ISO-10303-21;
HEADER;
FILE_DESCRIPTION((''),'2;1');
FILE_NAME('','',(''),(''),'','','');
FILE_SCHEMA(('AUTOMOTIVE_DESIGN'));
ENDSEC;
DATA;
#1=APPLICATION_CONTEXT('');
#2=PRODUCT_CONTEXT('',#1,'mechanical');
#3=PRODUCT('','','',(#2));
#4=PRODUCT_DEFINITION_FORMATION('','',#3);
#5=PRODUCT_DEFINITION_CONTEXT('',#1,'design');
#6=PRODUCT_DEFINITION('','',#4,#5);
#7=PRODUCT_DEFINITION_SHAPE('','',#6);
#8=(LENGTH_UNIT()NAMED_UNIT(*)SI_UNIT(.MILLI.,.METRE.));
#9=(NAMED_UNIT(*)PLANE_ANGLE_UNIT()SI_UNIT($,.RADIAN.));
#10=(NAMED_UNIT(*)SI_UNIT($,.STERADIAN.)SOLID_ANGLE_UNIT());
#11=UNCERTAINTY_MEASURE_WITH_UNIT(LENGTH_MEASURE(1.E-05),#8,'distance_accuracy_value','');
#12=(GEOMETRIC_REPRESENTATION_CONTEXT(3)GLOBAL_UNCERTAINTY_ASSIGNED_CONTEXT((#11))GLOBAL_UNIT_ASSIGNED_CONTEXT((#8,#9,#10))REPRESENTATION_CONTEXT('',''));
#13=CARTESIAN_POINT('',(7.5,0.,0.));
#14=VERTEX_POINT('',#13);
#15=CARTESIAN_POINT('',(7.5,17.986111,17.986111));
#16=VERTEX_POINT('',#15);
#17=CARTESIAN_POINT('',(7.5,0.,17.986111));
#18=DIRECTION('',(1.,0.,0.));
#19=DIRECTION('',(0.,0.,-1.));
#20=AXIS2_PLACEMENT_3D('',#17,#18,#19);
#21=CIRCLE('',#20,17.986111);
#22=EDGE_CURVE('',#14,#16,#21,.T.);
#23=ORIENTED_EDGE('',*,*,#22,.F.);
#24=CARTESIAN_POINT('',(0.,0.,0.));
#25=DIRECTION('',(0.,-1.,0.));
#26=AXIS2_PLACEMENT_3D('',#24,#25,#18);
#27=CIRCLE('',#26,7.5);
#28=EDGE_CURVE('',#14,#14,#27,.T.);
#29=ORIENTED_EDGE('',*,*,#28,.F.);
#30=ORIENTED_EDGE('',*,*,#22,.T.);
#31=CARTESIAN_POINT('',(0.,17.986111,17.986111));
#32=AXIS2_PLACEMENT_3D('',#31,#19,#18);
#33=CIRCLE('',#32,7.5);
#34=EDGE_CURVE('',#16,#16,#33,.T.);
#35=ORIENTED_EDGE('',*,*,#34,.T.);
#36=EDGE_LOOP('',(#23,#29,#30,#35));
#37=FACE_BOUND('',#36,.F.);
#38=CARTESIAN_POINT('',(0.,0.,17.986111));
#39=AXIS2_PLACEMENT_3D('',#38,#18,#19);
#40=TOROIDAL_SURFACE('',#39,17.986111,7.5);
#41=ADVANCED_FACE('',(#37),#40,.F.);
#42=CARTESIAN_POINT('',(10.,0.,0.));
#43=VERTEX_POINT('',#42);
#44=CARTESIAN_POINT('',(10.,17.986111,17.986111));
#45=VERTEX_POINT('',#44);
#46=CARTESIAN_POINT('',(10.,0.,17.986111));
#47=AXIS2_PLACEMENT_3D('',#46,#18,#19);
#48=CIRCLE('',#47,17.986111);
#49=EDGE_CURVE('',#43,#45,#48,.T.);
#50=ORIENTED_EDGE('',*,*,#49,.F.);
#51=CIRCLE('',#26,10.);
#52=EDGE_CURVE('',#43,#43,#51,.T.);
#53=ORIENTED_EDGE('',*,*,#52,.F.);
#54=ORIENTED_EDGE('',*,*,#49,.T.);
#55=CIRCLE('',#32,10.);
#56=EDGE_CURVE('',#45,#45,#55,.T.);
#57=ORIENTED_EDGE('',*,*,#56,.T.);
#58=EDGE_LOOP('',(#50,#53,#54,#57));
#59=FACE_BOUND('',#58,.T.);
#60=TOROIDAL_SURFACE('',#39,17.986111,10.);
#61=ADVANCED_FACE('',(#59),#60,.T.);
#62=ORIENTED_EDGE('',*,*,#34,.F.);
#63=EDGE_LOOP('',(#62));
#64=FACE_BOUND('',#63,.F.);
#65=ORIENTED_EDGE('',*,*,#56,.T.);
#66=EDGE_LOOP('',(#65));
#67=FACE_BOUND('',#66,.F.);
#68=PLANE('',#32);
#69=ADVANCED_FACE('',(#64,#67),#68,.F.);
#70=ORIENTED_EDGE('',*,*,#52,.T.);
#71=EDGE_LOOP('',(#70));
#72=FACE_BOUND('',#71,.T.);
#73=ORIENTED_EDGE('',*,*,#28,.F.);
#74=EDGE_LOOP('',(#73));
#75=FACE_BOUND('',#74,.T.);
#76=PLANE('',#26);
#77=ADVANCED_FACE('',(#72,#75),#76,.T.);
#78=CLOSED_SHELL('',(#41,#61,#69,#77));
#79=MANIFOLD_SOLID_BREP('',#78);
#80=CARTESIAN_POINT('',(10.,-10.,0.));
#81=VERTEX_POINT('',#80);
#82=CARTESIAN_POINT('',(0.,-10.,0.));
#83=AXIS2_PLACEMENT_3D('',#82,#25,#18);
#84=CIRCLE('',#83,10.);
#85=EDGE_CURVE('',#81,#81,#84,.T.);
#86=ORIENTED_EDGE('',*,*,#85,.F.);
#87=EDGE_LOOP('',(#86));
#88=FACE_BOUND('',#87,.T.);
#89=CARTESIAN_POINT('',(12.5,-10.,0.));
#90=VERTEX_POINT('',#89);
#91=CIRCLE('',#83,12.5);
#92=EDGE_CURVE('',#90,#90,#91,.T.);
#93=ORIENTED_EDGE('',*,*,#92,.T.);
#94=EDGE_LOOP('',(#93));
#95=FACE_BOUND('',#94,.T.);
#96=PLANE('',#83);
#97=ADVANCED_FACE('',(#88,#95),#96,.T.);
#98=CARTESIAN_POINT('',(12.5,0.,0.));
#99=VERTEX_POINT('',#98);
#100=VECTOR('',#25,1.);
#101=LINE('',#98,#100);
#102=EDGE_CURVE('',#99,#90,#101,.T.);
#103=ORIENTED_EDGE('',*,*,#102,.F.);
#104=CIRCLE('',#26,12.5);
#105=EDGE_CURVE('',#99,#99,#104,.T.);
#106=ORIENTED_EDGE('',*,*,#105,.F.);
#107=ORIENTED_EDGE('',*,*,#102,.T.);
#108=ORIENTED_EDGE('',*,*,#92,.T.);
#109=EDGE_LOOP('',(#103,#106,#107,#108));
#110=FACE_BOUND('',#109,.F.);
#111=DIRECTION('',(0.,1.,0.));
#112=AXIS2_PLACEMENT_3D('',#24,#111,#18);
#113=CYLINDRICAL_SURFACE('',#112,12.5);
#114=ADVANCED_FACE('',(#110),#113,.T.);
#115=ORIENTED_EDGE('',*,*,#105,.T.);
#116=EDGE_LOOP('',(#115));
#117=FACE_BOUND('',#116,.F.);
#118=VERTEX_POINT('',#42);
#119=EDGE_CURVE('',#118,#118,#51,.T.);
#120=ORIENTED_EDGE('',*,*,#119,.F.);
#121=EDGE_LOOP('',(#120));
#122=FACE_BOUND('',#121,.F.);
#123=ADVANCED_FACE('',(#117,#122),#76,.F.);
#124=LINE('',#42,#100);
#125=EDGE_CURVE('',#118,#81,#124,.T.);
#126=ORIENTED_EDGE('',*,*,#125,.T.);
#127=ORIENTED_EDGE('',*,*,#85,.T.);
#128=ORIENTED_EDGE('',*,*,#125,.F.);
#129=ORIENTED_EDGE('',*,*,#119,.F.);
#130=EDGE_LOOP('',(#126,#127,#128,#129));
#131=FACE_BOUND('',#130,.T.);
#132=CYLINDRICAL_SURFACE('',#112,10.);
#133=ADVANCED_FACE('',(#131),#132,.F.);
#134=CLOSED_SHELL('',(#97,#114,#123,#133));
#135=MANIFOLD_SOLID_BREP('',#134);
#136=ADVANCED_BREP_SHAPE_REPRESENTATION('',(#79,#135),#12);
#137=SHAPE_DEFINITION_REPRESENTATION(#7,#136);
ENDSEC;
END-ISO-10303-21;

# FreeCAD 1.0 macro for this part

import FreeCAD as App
import Part
import Sketcher

V = App.Vector
Q = App.Units.Quantity

doc = App.newDocument("Part")
body = doc.addObject("PartDesign::Body", "Body")
body.AllowCompound = True

# Sketch on XZ plane
sketch1 = body.newObject("Sketcher::SketchObject", "Sketch")
sketch1.AttachmentSupport = (doc.getObject("XZ_Plane"), [""])
sketch1.MapMode = "FlatFace"
sketch1.addGeometry([
    Part.Circle(V(0, 0, 0), V(0, 0, 1), 10),
    Part.Circle(V(0, 0, 0), V(0, 0, 1), 7.5),
], False)
sketch1.addGeometry(Part.LineSegment(V(0, 17.986111, 0), V(10, 17.986111, 0)), True)  # axis
sketch1.addConstraint([
    Sketcher.Constraint("Horizontal", 2),
    Sketcher.Constraint("Coincident", 0, 3, -1, 1),
    Sketcher.Constraint("Coincident", 1, 3, -1, 1),
    Sketcher.Constraint("PointOnObject", 2, 1, -2),
    Sketcher.Constraint("Diameter", 0, Q("20 mm")),
    Sketcher.Constraint("Diameter", 1, Q("15 mm")),
    Sketcher.Constraint("DistanceX", 2, 1, 2, 2, Q("10 mm")),
    Sketcher.Constraint("DistanceY", -1, 1, 2, 1, Q("17.986111 mm")),
])
revolution = body.newObject("PartDesign::Revolution", "Revolution")
revolution.Profile = sketch1
revolution.ReferenceAxis = (sketch1, ["Axis0"])
revolution.Angle = 90

# Sketch on XZ plane
sketch2 = body.newObject("Sketcher::SketchObject", "Sketch001")
sketch2.AttachmentSupport = (doc.getObject("XZ_Plane"), [""])
sketch2.MapMode = "FlatFace"
sketch2.addGeometry([
    Part.Circle(V(0, 0, 0), V(0, 0, 1), 12.5),
    Part.Circle(V(0, 0, 0), V(0, 0, 1), 10),
], False)
sketch2.addConstraint([
    Sketcher.Constraint("Coincident", 0, 3, -1, 1),
    Sketcher.Constraint("Coincident", 1, 3, -1, 1),
    Sketcher.Constraint("Diameter", 0, Q("25 mm")),
    Sketcher.Constraint("Diameter", 1, Q("20 mm")),
])
pad1 = body.newObject("PartDesign::Pad", "Pad")
pad1.Profile = sketch2
pad1.Length = 10

doc.recompute()
